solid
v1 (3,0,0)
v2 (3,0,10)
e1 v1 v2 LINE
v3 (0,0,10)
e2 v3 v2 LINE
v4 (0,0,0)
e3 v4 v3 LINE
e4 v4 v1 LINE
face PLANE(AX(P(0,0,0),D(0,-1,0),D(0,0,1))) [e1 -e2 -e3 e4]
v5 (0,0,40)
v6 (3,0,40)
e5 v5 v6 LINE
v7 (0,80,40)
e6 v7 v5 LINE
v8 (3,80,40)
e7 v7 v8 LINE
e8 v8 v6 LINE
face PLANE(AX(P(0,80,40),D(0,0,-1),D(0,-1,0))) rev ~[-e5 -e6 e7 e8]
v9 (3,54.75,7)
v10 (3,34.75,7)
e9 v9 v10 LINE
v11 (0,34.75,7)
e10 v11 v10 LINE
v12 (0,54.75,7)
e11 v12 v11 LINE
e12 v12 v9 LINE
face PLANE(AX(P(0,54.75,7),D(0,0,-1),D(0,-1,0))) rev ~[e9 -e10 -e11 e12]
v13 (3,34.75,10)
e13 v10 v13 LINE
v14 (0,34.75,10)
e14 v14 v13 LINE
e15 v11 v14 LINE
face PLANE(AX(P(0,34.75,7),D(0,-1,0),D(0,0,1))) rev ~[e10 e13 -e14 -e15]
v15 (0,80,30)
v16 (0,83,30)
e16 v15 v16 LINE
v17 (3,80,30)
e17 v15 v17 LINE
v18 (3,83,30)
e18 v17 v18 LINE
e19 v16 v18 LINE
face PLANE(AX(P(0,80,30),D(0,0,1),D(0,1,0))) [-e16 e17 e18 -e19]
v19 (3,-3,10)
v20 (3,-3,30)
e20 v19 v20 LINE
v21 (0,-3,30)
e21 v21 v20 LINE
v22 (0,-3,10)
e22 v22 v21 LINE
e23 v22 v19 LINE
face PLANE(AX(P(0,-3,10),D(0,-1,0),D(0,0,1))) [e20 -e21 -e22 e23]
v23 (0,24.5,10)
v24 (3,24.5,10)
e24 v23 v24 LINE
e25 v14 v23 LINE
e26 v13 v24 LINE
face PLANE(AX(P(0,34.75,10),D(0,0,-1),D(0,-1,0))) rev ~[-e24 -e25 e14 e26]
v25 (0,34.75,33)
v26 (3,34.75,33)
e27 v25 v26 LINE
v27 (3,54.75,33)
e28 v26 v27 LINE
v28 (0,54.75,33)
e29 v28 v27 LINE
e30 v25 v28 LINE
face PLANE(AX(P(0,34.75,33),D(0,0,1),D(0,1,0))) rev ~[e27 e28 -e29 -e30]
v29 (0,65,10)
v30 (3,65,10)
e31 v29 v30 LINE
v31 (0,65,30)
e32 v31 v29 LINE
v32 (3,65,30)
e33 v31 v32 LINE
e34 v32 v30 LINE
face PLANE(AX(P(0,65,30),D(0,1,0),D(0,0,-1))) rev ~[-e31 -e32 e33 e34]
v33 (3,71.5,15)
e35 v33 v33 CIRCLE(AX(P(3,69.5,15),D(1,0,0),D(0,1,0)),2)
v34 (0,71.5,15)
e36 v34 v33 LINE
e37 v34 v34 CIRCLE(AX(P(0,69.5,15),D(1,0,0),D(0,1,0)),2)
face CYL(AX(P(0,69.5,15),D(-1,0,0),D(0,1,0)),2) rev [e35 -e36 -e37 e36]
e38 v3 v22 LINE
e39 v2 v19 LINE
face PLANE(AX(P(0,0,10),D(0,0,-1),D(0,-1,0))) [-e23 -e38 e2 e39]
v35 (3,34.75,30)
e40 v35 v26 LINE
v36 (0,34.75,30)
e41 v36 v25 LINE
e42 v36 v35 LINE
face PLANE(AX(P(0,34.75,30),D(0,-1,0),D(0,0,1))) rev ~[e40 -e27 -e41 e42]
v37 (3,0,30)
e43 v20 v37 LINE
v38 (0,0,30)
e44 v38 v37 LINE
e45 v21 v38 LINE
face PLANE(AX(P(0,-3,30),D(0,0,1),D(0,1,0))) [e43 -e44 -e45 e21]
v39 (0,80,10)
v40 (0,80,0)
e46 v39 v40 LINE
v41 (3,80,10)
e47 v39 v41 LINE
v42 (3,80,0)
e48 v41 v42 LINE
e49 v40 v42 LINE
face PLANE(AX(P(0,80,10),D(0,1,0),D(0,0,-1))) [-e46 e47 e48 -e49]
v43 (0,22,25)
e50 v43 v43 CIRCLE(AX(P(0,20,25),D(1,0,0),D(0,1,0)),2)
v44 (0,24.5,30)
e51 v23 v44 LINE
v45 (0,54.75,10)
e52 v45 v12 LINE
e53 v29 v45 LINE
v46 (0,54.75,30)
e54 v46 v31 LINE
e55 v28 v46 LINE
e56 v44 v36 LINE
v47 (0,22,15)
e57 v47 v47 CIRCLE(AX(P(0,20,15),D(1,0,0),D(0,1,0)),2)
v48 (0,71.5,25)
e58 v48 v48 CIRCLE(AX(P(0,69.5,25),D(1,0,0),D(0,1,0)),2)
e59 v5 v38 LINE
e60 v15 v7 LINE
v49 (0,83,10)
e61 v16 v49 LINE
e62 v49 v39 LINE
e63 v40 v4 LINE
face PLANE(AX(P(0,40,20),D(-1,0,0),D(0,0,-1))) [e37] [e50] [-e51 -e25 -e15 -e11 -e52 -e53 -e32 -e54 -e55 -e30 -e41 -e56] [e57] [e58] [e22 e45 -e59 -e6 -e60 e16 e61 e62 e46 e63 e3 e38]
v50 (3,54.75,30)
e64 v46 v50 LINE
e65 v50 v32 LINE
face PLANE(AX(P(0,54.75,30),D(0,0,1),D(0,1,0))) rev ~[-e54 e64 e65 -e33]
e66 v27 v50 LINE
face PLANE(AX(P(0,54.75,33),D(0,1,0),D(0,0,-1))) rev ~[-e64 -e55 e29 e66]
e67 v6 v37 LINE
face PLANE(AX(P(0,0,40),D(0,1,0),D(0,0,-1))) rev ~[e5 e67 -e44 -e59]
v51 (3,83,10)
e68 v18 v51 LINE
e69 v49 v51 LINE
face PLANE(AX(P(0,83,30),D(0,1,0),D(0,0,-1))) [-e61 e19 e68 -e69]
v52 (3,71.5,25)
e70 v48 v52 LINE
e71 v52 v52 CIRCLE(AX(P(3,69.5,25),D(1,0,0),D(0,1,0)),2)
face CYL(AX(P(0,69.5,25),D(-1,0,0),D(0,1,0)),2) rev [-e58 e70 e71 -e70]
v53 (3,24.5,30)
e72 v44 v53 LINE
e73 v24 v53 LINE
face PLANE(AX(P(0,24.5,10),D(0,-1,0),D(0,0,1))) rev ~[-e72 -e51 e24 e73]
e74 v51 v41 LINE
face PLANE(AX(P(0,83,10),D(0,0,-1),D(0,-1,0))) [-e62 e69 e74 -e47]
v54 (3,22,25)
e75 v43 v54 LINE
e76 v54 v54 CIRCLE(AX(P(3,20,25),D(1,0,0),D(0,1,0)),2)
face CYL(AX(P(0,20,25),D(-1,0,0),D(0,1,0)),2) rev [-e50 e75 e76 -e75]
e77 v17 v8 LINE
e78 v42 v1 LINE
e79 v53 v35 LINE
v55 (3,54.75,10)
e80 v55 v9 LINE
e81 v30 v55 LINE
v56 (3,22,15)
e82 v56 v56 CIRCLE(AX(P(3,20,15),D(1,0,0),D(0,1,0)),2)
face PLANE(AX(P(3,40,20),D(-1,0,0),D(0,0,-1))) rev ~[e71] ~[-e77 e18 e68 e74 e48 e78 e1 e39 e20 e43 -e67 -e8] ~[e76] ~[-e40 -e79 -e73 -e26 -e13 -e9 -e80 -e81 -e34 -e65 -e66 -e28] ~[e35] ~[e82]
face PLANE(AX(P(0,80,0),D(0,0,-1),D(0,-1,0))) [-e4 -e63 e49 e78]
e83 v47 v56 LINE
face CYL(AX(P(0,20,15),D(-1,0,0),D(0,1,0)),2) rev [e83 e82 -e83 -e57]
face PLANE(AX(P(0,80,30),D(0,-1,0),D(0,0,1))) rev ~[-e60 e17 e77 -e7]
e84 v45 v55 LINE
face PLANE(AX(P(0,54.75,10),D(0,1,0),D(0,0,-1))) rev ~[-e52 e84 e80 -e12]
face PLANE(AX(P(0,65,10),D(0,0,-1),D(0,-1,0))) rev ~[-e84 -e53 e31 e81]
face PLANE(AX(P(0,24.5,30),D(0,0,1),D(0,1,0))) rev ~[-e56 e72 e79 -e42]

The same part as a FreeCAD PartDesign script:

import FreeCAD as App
import Part
import Sketcher
Q = App.Units.Quantity


def add_polygon(sketch, points):
    """Adds a closed chain of lines whose ends are joined by coincident constraints."""
    first, n = sketch.GeometryCount, len(points)
    for a, b in zip(points, points[1:] + points[:1]):
        sketch.addGeometry(Part.LineSegment(App.Vector(*a, 0), App.Vector(*b, 0)), False)
    for i in range(n):
        sketch.addConstraint(Sketcher.Constraint("Coincident", first + i, 2, first + (i + 1) % n, 1))

doc = App.newDocument("Part")
params = doc.addObject("Spreadsheet::Sheet", "Params")
for row, (alias, value) in enumerate([
    ("sketch1_width", "80 mm"),
    ("sketch1_width2", "20 mm"),
    ("sketch1_diameter", "4 mm"),
    ("sketch1_height", "10 mm"),
    ("pad1_length", "3 mm"),
], start=1):
    params.set(f"A{row}", alias)
    params.set(f"B{row}", "=" + value)
    params.setAlias(f"B{row}", alias)

body = doc.addObject("PartDesign::Body", "Body")

# Sketch on YZ plane
sketch1 = body.newObject("Sketcher::SketchObject", "Sketch")
sketch1.AttachmentSupport = (doc.getObject("YZ_Plane"), [""])
sketch1.MapMode = "FlatFace"
add_polygon(sketch1, [(83, 10), (83, 30), (80, 30), (80, 40), (0, 40), (0, 30), (-3, 30), (-3, 10), (0, 10), (0, 0), (80, 0), (80, 10)])  # lines 0-11
sketch1.addGeometry(Part.Circle(App.Vector(20, 15, 0), App.Vector(0, 0, 1), 2), False)  # 12
sketch1.addGeometry(Part.Circle(App.Vector(69.5, 15, 0), App.Vector(0, 0, 1), 2), False)  # 13
sketch1.addGeometry(Part.Circle(App.Vector(20, 25, 0), App.Vector(0, 0, 1), 2), False)  # 14
add_polygon(sketch1, [(54.75, 30), (65, 30), (65, 10), (54.75, 10), (54.75, 7), (34.75, 7), (34.75, 10), (24.5, 10), (24.5, 30), (34.75, 30), (34.75, 33), (54.75, 33)])  # lines 15-26
sketch1.addGeometry(Part.Circle(App.Vector(69.5, 25, 0), App.Vector(0, 0, 1), 2), False)  # 27
sketch1.addConstraint([
    Sketcher.Constraint("Vertical", 0),
    Sketcher.Constraint("Horizontal", 1),
    Sketcher.Constraint("Vertical", 2),
    Sketcher.Constraint("Horizontal", 3),
    Sketcher.Constraint("Vertical", 4),
    Sketcher.Constraint("Horizontal", 5),
    Sketcher.Constraint("Vertical", 6),
    Sketcher.Constraint("Horizontal", 7),
    Sketcher.Constraint("Vertical", 8),
    Sketcher.Constraint("Horizontal", 9),
    Sketcher.Constraint("Vertical", 10),
    Sketcher.Constraint("Horizontal", 11),
    Sketcher.Constraint("Horizontal", 15),
    Sketcher.Constraint("Vertical", 16),
    Sketcher.Constraint("Horizontal", 17),
    Sketcher.Constraint("Vertical", 18),
    Sketcher.Constraint("Horizontal", 19),
    Sketcher.Constraint("Vertical", 20),
    Sketcher.Constraint("Horizontal", 21),
    Sketcher.Constraint("Vertical", 22),
    Sketcher.Constraint("Horizontal", 23),
    Sketcher.Constraint("Vertical", 24),
    Sketcher.Constraint("Horizontal", 25),
    Sketcher.Constraint("Vertical", 26),
    Sketcher.Constraint("Coincident", 8, 2, -1, 1),
    Sketcher.Constraint("Equal", 12, 13),
    Sketcher.Constraint("Equal", 13, 14),
    Sketcher.Constraint("Equal", 14, 27),
    Sketcher.Constraint("PointOnObject", 3, 2, -2),
    Sketcher.Constraint("Horizontal", 12, 3, 13, 3),
    Sketcher.Constraint("Horizontal", 14, 3, 27, 3),
    Sketcher.Constraint("Horizontal", 1, 2, 4, 2),
    Sketcher.Constraint("Horizontal", 7, 2, 10, 2),
    Sketcher.Constraint("Horizontal", 5, 2, 15, 2),
    Sketcher.Constraint("Horizontal", 11, 2, 16, 2),
    Sketcher.Constraint("Horizontal", 17, 2, 20, 2),
    Sketcher.Constraint("Horizontal", 15, 2, 22, 2),
    Sketcher.Constraint("Vertical", 12, 3, 14, 3),
    Sketcher.Constraint("Vertical", 13, 3, 27, 3),
    Sketcher.Constraint("Vertical", 2, 2, 9, 2),
    Sketcher.Constraint("Vertical", 20, 2, 23, 2),
    Sketcher.Constraint("Vertical", 18, 2, 25, 2),
    Sketcher.Constraint("Equal", 1, 5),
    Sketcher.Constraint("Equal", 17, 21),
    Sketcher.Constraint("Equal", 25, 0),
    Sketcher.Constraint("Equal", 4, 8),
    Sketcher.Constraint("Equal", 11, 18),
    Sketcher.Constraint("Equal", 20, 24),
    Sketcher.Constraint("DistanceX", 3, 2, 3, 1, Q("80 mm")),
    Sketcher.Constraint("DistanceX", 19, 2, 19, 1, Q("20 mm")),
    Sketcher.Constraint("Diameter", 12, Q("4 mm")),
    Sketcher.Constraint("DistanceX", -1, 1, 12, 3, Q("20 mm")),
    Sketcher.Constraint("DistanceX", -1, 1, 0, 2, Q("83 mm")),
    Sketcher.Constraint("DistanceX", -1, 1, 15, 2, Q("65 mm")),
    Sketcher.Constraint("DistanceY", 2, 1, 2, 2, Q("10 mm")),
    Sketcher.Constraint("DistanceX", -1, 1, 19, 2, Q("34.75 mm")),
    Sketcher.Constraint("DistanceY", -1, 1, 12, 3, Q("15 mm")),
    Sketcher.Constraint("DistanceY", -1, 1, 14, 3, Q("25 mm")),
    Sketcher.Constraint("DistanceX", -1, 1, 13, 3, Q("69.5 mm")),
])
sketch1.setExpression("Constraints[72]", "Params.sketch1_width")
sketch1.setExpression("Constraints[73]", "Params.sketch1_width2")
sketch1.setExpression("Constraints[74]", "Params.sketch1_diameter")
sketch1.setExpression("Constraints[78]", "Params.sketch1_height")
pad1 = body.newObject("PartDesign::Pad", "Pad")
pad1.Profile = sketch1
pad1.setExpression("Length", "Params.pad1_length")

doc.recompute()
